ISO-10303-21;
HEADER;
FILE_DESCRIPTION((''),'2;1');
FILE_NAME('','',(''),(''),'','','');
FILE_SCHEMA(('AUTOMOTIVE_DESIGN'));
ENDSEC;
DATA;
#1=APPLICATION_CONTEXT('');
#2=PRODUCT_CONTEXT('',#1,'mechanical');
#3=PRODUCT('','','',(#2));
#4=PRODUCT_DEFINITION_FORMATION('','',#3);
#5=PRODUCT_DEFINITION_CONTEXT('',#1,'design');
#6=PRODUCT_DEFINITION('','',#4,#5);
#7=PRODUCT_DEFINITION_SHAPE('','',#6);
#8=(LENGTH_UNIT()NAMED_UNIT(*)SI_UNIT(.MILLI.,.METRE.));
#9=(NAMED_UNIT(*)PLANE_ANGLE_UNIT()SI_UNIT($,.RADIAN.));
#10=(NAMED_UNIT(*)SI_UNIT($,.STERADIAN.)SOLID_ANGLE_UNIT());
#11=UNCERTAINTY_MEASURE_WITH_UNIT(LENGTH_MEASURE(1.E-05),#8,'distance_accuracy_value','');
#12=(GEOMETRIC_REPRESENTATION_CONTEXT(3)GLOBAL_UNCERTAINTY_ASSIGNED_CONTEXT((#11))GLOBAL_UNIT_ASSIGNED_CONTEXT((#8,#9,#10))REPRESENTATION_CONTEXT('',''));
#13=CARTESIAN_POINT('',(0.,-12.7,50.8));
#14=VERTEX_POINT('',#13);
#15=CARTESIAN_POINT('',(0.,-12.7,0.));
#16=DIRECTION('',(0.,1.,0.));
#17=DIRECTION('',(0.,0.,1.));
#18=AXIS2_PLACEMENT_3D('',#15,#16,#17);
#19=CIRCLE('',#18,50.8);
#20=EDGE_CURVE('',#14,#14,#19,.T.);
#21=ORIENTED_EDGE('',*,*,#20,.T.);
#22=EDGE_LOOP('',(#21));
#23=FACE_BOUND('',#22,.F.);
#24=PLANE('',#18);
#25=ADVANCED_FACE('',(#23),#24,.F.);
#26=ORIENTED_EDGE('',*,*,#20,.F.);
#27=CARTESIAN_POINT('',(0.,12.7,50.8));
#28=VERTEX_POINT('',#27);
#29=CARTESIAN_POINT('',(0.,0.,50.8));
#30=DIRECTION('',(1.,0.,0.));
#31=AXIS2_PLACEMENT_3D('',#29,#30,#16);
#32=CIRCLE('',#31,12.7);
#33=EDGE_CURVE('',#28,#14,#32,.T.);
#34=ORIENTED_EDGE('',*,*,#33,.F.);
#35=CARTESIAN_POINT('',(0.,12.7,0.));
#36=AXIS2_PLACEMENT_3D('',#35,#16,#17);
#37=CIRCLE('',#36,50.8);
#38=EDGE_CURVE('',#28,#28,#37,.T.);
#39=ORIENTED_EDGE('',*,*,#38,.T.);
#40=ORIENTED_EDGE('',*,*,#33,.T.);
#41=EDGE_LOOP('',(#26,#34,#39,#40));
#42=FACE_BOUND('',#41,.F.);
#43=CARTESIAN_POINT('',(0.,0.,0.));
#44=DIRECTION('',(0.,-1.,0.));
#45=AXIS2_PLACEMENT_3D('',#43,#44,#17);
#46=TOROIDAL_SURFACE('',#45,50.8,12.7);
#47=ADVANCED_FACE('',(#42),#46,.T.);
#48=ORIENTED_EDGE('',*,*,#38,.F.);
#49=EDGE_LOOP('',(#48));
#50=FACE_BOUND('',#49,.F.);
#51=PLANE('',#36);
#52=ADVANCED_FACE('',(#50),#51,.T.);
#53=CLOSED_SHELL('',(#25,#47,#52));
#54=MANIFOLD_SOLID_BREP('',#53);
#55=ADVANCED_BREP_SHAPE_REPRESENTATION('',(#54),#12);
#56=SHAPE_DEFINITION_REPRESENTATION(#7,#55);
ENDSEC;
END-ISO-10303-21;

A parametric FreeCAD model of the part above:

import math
import FreeCAD as App
import Part
import Sketcher
from FreeCAD import Vector
Q = App.Units.Quantity

doc = App.newDocument("Part")
body = doc.addObject("PartDesign::Body", "Body")

sketch1 = doc.addObject("Sketcher::SketchObject", "Sketch")
body.addObject(sketch1)
sketch1.AttachmentSupport = (doc.YZ_Plane, [""])
sketch1.MapMode = "FlatFace"
sketch1.addGeometry([
    Part.LineSegment(Vector(-13, 51, 0), Vector(-13, 0, 0)),
    Part.LineSegment(Vector(-13, 0, 0), Vector(13, 0, 0)),
    Part.LineSegment(Vector(13, 0, 0), Vector(13, 51, 0)),
    Part.ArcOfCircle(Part.Circle(Vector(0, 51, 0), Vector(0, 0, 1), 13), math.radians(0), math.radians(180)),
], False)
sketch1.addConstraint([
    Sketcher.Constraint("Coincident", 0, 2, 1, 1),
    Sketcher.Constraint("Coincident", 1, 2, 2, 1),
    Sketcher.Constraint("Tangent", 2, 2, 3, 1),
    Sketcher.Constraint("Tangent", 3, 2, 0, 1),
    Sketcher.Constraint("Vertical", 0),
    Sketcher.Constraint("Horizontal", 1),
    Sketcher.Constraint("Vertical", 2),
    Sketcher.Constraint("Symmetric", 0, 2, 1, 2, -1, 1),
    Sketcher.Constraint("Radius", 3, Q("0.5 in")),
    Sketcher.Constraint("DistanceY", 0, 2, 0, 1, Q("2 in")),
])
revolution = doc.addObject("PartDesign::Revolution", "Revolution")
body.addObject(revolution)
revolution.Profile = sketch1
revolution.ReferenceAxis = (sketch1, ["H_Axis"])
revolution.Angle = 360

doc.recompute()
